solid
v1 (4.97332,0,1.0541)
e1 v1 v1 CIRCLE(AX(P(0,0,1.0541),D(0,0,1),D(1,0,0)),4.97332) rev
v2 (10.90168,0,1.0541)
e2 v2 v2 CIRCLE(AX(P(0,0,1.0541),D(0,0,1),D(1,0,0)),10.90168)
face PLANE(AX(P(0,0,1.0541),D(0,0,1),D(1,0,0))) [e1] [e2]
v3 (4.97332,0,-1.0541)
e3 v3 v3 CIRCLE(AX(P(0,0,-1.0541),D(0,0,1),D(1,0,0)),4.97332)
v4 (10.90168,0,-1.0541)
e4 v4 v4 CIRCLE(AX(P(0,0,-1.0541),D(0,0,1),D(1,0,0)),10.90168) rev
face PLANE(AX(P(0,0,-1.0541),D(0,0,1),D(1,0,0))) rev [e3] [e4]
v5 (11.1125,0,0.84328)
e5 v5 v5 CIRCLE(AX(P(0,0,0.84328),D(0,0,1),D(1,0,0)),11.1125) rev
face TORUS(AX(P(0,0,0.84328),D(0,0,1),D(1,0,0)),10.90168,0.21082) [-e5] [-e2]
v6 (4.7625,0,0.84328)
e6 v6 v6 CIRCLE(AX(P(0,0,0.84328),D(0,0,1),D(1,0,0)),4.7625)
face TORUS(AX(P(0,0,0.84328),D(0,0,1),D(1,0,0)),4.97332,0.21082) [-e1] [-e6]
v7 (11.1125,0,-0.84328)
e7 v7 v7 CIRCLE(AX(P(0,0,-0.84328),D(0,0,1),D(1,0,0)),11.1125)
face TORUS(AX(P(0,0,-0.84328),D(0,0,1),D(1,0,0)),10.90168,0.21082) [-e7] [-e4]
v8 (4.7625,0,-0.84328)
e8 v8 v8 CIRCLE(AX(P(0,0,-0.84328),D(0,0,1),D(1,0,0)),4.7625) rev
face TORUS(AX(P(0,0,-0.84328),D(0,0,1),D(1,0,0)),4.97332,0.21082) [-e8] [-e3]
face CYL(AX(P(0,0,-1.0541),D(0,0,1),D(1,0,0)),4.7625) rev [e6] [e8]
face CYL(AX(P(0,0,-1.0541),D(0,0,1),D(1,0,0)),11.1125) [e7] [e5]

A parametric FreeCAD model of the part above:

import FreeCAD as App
import Part
import Sketcher
from FreeCAD import Vector
Q = App.Units.Quantity


def edges_at(feature, points):
    """Names of the edges that pass closest to the given points."""
    edges = feature.Shape.Edges
    near = lambda p: min(range(len(edges)), key=lambda i: edges[i].distToShape(Part.Vertex(*p))[0])
    return sorted({f"Edge{near(p) + 1}" for p in points})

doc = App.newDocument("Part")
body = doc.addObject("PartDesign::Body", "Body")

sketch1 = body.newObject("Sketcher::SketchObject", "Sketch")
sketch1.AttachmentSupport = (doc.getObject("XY_Plane"), [""])
sketch1.MapMode = "FlatFace"
sketch1.addGeometry([
    Part.Circle(Vector(0, 0, 0), Vector(0, 0, 1), 11.1125),
    Part.Circle(Vector(0, 0, 0), Vector(0, 0, 1), 4.7625),
], False)
sketch1.addConstraint([
    Sketcher.Constraint("Coincident", 0, 3, -1, 1),
    Sketcher.Constraint("Coincident", 1, 3, -1, 1),
    Sketcher.Constraint("Diameter", 0, Q("0.875 in")),
    Sketcher.Constraint("Diameter", 1, Q("0.375 in")),
])
pad1 = body.newObject("PartDesign::Pad", "Pad")
pad1.Profile = sketch1
pad1.Type = "TwoLengths"
pad1.Length = Q("0.0415 in")
pad1.Length2 = Q("0.0415 in")
doc.recompute()

fillet = body.newObject("PartDesign::Fillet", "Fillet")
fillet.Base = (pad1, edges_at(pad1, [
    (-11.113, 0, -1.054),
    (-4.763, 0, -1.054),
    (-11.113, 0, 1.054),
    (-4.763, 0, 1.054),
]))
fillet.Radius = Q("0.0083 in")

doc.recompute()
